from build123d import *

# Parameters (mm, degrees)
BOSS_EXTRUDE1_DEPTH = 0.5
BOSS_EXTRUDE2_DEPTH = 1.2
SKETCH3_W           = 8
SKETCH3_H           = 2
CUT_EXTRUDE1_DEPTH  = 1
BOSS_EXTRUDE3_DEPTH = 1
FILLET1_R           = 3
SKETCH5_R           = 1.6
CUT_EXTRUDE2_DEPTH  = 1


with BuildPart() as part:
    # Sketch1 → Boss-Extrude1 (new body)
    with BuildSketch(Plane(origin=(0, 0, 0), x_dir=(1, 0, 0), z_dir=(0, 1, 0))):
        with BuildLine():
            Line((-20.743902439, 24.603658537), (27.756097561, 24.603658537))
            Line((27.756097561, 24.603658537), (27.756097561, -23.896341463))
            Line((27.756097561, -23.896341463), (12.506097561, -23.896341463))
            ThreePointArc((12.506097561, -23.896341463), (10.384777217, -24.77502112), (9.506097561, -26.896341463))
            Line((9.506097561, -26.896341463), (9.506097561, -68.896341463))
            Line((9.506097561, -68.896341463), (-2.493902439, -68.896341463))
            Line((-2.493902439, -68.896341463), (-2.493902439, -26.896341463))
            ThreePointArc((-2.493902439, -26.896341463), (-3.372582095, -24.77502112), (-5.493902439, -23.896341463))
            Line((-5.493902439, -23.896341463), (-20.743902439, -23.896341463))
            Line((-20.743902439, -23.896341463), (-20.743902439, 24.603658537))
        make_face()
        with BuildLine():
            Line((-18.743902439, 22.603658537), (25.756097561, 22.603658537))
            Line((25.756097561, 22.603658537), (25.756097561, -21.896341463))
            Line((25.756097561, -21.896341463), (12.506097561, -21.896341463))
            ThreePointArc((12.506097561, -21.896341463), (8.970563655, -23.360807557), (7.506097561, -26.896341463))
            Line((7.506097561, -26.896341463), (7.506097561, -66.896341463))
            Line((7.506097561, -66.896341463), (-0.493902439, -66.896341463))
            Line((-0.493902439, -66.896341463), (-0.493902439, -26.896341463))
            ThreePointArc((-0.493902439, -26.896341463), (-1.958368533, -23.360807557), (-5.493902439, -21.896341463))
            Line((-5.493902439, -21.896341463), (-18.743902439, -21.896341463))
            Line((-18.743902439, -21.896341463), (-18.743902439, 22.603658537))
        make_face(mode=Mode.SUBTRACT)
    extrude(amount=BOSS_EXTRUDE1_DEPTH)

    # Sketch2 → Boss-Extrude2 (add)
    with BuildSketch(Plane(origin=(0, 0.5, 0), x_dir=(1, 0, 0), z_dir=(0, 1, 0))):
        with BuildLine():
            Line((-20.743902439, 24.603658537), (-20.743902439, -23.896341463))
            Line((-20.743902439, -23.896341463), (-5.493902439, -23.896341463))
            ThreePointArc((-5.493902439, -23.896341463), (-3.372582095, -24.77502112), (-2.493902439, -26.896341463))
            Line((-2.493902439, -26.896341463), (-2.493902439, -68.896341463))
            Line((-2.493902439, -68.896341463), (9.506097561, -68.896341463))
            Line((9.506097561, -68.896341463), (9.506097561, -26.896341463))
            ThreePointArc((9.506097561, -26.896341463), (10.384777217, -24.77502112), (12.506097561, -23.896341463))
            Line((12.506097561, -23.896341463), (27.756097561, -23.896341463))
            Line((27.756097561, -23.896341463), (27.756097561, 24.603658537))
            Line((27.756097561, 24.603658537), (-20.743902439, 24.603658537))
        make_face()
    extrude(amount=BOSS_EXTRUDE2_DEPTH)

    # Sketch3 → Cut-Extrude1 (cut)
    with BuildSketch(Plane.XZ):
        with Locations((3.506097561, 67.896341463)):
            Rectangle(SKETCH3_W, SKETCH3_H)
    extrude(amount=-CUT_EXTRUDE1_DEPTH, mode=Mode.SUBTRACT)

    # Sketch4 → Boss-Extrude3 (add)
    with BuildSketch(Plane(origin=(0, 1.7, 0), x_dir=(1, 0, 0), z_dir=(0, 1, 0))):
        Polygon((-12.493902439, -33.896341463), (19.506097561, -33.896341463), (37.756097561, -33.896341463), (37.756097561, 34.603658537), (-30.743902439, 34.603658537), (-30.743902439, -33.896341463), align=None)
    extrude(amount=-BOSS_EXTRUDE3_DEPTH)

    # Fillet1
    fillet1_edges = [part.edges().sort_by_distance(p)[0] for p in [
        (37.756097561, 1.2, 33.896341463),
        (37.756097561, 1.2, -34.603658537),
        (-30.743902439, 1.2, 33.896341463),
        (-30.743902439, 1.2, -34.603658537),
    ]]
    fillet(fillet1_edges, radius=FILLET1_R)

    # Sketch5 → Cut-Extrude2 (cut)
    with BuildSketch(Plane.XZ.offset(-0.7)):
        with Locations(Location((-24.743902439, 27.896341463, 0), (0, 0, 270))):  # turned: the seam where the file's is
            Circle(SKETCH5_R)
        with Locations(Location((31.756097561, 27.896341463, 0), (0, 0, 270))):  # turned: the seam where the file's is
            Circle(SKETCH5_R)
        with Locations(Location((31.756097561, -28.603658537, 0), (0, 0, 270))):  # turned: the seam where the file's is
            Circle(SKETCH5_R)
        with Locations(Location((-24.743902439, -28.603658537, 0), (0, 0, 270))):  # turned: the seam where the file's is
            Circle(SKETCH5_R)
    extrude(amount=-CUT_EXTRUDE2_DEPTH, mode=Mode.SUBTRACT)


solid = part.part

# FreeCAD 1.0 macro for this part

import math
import FreeCAD as App
import Part
import Sketcher

V = App.Vector
Q = App.Units.Quantity


def edges_at(feature, points):
    """Names of the edges that pass closest to the given points."""
    edges = feature.Shape.Edges
    near = lambda p: min(range(len(edges)), key=lambda i: edges[i].distToShape(Part.Vertex(*p))[0])
    return sorted({f"Edge{near(p) + 1}" for p in points})

doc = App.newDocument("Part")
body = doc.addObject("PartDesign::Body", "Body")

# Sketch on XZ plane
sketch1 = body.newObject("Sketcher::SketchObject", "Sketch")
sketch1.AttachmentSupport = (doc.getObject("XZ_Plane"), [""])
sketch1.MapMode = "FlatFace"
sketch1.addGeometry([
    Part.LineSegment(V(27.756098, -24.603659, 0), V(-20.743902, -24.603659, 0)),  # 0
    Part.LineSegment(V(-20.743902, -24.603659, 0), V(-20.743902, 23.896341, 0)),  # 1
    Part.LineSegment(V(-20.743902, 23.896341, 0), V(-5.493902, 23.896341, 0)),  # 2
    Part.ArcOfCircle(Part.Circle(V(-5.493902, 26.896341, 0), V(0, 0, 1), 3), math.radians(-90), math.radians(0)),  # 3
    Part.LineSegment(V(-2.493902, 26.896341, 0), V(-2.493902, 68.896341, 0)),  # 4
    Part.LineSegment(V(-2.493902, 68.896341, 0), V(9.506098, 68.896341, 0)),  # 5
    Part.LineSegment(V(9.506098, 68.896341, 0), V(9.506098, 26.896341, 0)),  # 6
    Part.ArcOfCircle(Part.Circle(V(12.506098, 26.896341, 0), V(0, 0, 1), 3), math.radians(180), math.radians(270)),  # 7
    Part.LineSegment(V(12.506098, 23.896341, 0), V(27.756098, 23.896341, 0)),  # 8
    Part.LineSegment(V(27.756098, 23.896341, 0), V(27.756098, -24.603659, 0)),  # 9
    Part.LineSegment(V(-18.743902, -22.603659, 0), V(25.756098, -22.603659, 0)),  # 10
    Part.LineSegment(V(25.756098, -22.603659, 0), V(25.756098, 21.896341, 0)),  # 11
    Part.LineSegment(V(25.756098, 21.896341, 0), V(12.506098, 21.896341, 0)),  # 12
    Part.ArcOfCircle(Part.Circle(V(12.506098, 26.896341, 0), V(0, 0, 1), 5), math.radians(180), math.radians(270)),  # 13
    Part.LineSegment(V(7.506098, 26.896341, 0), V(7.506098, 66.896341, 0)),  # 14
    Part.LineSegment(V(7.506098, 66.896341, 0), V(-0.493902, 66.896341, 0)),  # 15
    Part.LineSegment(V(-0.493902, 66.896341, 0), V(-0.493902, 26.896341, 0)),  # 16
    Part.ArcOfCircle(Part.Circle(V(-5.493902, 26.896341, 0), V(0, 0, 1), 5), math.radians(-90), math.radians(0)),  # 17
    Part.LineSegment(V(-5.493902, 21.896341, 0), V(-18.743902, 21.896341, 0)),  # 18
    Part.LineSegment(V(-18.743902, 21.896341, 0), V(-18.743902, -22.603659, 0)),  # 19
], False)
sketch1.addConstraint([
    Sketcher.Constraint("Coincident", 0, 2, 1, 1),
    Sketcher.Constraint("Coincident", 1, 2, 2, 1),
    Sketcher.Constraint("Tangent", 2, 2, 3, 1),
    Sketcher.Constraint("Tangent", 3, 2, 4, 1),
    Sketcher.Constraint("Coincident", 4, 2, 5, 1),
    Sketcher.Constraint("Coincident", 5, 2, 6, 1),
    Sketcher.Constraint("Tangent", 6, 2, 7, 1),
    Sketcher.Constraint("Tangent", 7, 2, 8, 1),
    Sketcher.Constraint("Coincident", 8, 2, 9, 1),
    Sketcher.Constraint("Coincident", 9, 2, 0, 1),
    Sketcher.Constraint("Coincident", 10, 2, 11, 1),
    Sketcher.Constraint("Coincident", 11, 2, 12, 1),
    Sketcher.Constraint("Tangent", 12, 2, 13, 2),
    Sketcher.Constraint("Tangent", 13, 1, 14, 1),
    Sketcher.Constraint("Coincident", 14, 2, 15, 1),
    Sketcher.Constraint("Coincident", 15, 2, 16, 1),
    Sketcher.Constraint("Tangent", 16, 2, 17, 2),
    Sketcher.Constraint("Tangent", 17, 1, 18, 1),
    Sketcher.Constraint("Coincident", 18, 2, 19, 1),
    Sketcher.Constraint("Coincident", 19, 2, 10, 1),
    Sketcher.Constraint("Horizontal", 0),
    Sketcher.Constraint("Vertical", 1),
    Sketcher.Constraint("Horizontal", 2),
    Sketcher.Constraint("Vertical", 4),
    Sketcher.Constraint("Horizontal", 5),
    Sketcher.Constraint("Vertical", 6),
    Sketcher.Constraint("Horizontal", 8),
    Sketcher.Constraint("Vertical", 9),
    Sketcher.Constraint("Horizontal", 10),
    Sketcher.Constraint("Vertical", 11),
    Sketcher.Constraint("Horizontal", 12),
    Sketcher.Constraint("Vertical", 14),
    Sketcher.Constraint("Horizontal", 15),
    Sketcher.Constraint("Vertical", 16),
    Sketcher.Constraint("Horizontal", 18),
    Sketcher.Constraint("Vertical", 19),
    Sketcher.Constraint("Coincident", 13, 3, 7, 3),
    Sketcher.Constraint("Coincident", 17, 3, 3, 3),
    Sketcher.Constraint("Equal", 3, 7),
    Sketcher.Constraint("Equal", 13, 17),
    Sketcher.Constraint("Horizontal", 3, 3, 7, 3),
    Sketcher.Constraint("Equal", 2, 8),
    Sketcher.Constraint("Equal", 12, 18),
    Sketcher.Constraint("Equal", 0, 1),
    Sketcher.Constraint("Equal", 10, 11),
    Sketcher.Constraint("Radius", 3, Q("3 mm")),
    Sketcher.Constraint("Radius", 13, Q("5 mm")),
    Sketcher.Constraint("DistanceX", 5, 1, 5, 2, Q("12 mm")),
    Sketcher.Constraint("DistanceY", 4, 1, 4, 2, Q("42 mm")),
    Sketcher.Constraint("DistanceY", 14, 1, 14, 2, Q("40 mm")),
    Sketcher.Constraint("DistanceX", 0, 2, 0, 1, Q("48.5 mm")),
    Sketcher.Constraint("DistanceX", 10, 1, 10, 2, Q("44.5 mm")),
    Sketcher.Constraint("DistanceY", -1, 1, 3, 3, Q("26.896341 mm")),
    Sketcher.Constraint("DistanceX", 3, 3, -1, 1, Q("5.493902 mm")),
])
pad1 = body.newObject("PartDesign::Pad", "Pad")
pad1.Profile = sketch1
pad1.Length = 0.5
pad1.Reversed = True

# Sketch on XZ plane
sketch2 = body.newObject("Sketcher::SketchObject", "Sketch001")
sketch2.AttachmentSupport = (doc.getObject("XZ_Plane"), [""])
sketch2.MapMode = "FlatFace"
sketch2.AttachmentOffset = App.Placement(V(0, 0, -0.5), App.Rotation())
sketch2.addGeometry([
    Part.LineSegment(V(-20.743902, -24.603659, 0), V(-20.743902, 23.896341, 0)),  # 0
    Part.LineSegment(V(-20.743902, 23.896341, 0), V(-5.493902, 23.896341, 0)),  # 1
    Part.ArcOfCircle(Part.Circle(V(-5.493902, 26.896341, 0), V(0, 0, 1), 3), math.radians(-90), math.radians(0)),  # 2
    Part.LineSegment(V(-2.493902, 26.896341, 0), V(-2.493902, 68.896341, 0)),  # 3
    Part.LineSegment(V(-2.493902, 68.896341, 0), V(9.506098, 68.896341, 0)),  # 4
    Part.LineSegment(V(9.506098, 68.896341, 0), V(9.506098, 26.896341, 0)),  # 5
    Part.ArcOfCircle(Part.Circle(V(12.506098, 26.896341, 0), V(0, 0, 1), 3), math.radians(180), math.radians(270)),  # 6
    Part.LineSegment(V(12.506098, 23.896341, 0), V(27.756098, 23.896341, 0)),  # 7
    Part.LineSegment(V(27.756098, 23.896341, 0), V(27.756098, -24.603659, 0)),  # 8
    Part.LineSegment(V(27.756098, -24.603659, 0), V(-20.743902, -24.603659, 0)),  # 9
], False)
sketch2.addConstraint([
    Sketcher.Constraint("Coincident", 0, 2, 1, 1),
    Sketcher.Constraint("Tangent", 1, 2, 2, 1),
    Sketcher.Constraint("Tangent", 2, 2, 3, 1),
    Sketcher.Constraint("Coincident", 3, 2, 4, 1),
    Sketcher.Constraint("Coincident", 4, 2, 5, 1),
    Sketcher.Constraint("Tangent", 5, 2, 6, 1),
    Sketcher.Constraint("Tangent", 6, 2, 7, 1),
    Sketcher.Constraint("Coincident", 7, 2, 8, 1),
    Sketcher.Constraint("Coincident", 8, 2, 9, 1),
    Sketcher.Constraint("Coincident", 9, 2, 0, 1),
    Sketcher.Constraint("Vertical", 0),
    Sketcher.Constraint("Horizontal", 1),
    Sketcher.Constraint("Vertical", 3),
    Sketcher.Constraint("Horizontal", 4),
    Sketcher.Constraint("Vertical", 5),
    Sketcher.Constraint("Horizontal", 7),
    Sketcher.Constraint("Vertical", 8),
    Sketcher.Constraint("Horizontal", 9),
    Sketcher.Constraint("Equal", 2, 6),
    Sketcher.Constraint("Horizontal", 2, 3, 6, 3),
    Sketcher.Constraint("Equal", 1, 7),
    Sketcher.Constraint("Equal", 9, 0),
    Sketcher.Constraint("Radius", 2, Q("3 mm")),
    Sketcher.Constraint("DistanceX", 4, 1, 4, 2, Q("12 mm")),
    Sketcher.Constraint("DistanceY", 3, 1, 3, 2, Q("42 mm")),
    Sketcher.Constraint("DistanceX", 9, 2, 9, 1, Q("48.5 mm")),
    Sketcher.Constraint("DistanceY", -1, 1, 2, 3, Q("26.896341 mm")),
    Sketcher.Constraint("DistanceX", 2, 3, -1, 1, Q("5.493902 mm")),
])
pad2 = body.newObject("PartDesign::Pad", "Pad001")
pad2.Profile = sketch2
pad2.Length = 1.2
pad2.Reversed = True

# Sketch on XZ plane
sketch3 = body.newObject("Sketcher::SketchObject", "Sketch002")
sketch3.AttachmentSupport = (doc.getObject("XZ_Plane"), [""])
sketch3.MapMode = "FlatFace"
sketch3.addGeometry([
    Part.LineSegment(V(-0.493902, 68.896341, 0), V(-0.493902, 66.896341, 0)),
    Part.LineSegment(V(-0.493902, 66.896341, 0), V(7.506098, 66.896341, 0)),
    Part.LineSegment(V(7.506098, 66.896341, 0), V(7.506098, 68.896341, 0)),
    Part.LineSegment(V(7.506098, 68.896341, 0), V(-0.493902, 68.896341, 0)),
], False)
sketch3.addConstraint([
    Sketcher.Constraint("Coincident", 0, 2, 1, 1),
    Sketcher.Constraint("Coincident", 1, 2, 2, 1),
    Sketcher.Constraint("Coincident", 2, 2, 3, 1),
    Sketcher.Constraint("Coincident", 3, 2, 0, 1),
    Sketcher.Constraint("Vertical", 0),
    Sketcher.Constraint("Horizontal", 1),
    Sketcher.Constraint("Vertical", 2),
    Sketcher.Constraint("Horizontal", 3),
    Sketcher.Constraint("DistanceX", 1, 1, 1, 2, Q("8 mm")),
    Sketcher.Constraint("DistanceY", 0, 2, 0, 1, Q("2 mm")),
    Sketcher.Constraint("DistanceY", -1, 1, 0, 2, Q("66.896341 mm")),
    Sketcher.Constraint("DistanceX", 0, 2, -1, 1, Q("0.493902 mm")),
])
pocket1 = body.newObject("PartDesign::Pocket", "Pocket")
pocket1.Profile = sketch3
pocket1.Length = 1

# Sketch on XZ plane
sketch4 = body.newObject("Sketcher::SketchObject", "Sketch003")
sketch4.AttachmentSupport = (doc.getObject("XZ_Plane"), [""])
sketch4.MapMode = "FlatFace"
sketch4.AttachmentOffset = App.Placement(V(0, 0, -1.7), App.Rotation())
sketch4.addGeometry([
    Part.LineSegment(V(37.756098, 33.896341, 0), V(37.756098, -34.603659, 0)),
    Part.LineSegment(V(37.756098, -34.603659, 0), V(-30.743902, -34.603659, 0)),
    Part.LineSegment(V(-30.743902, -34.603659, 0), V(-30.743902, 33.896341, 0)),
    Part.LineSegment(V(-30.743902, 33.896341, 0), V(37.756098, 33.896341, 0)),
], False)
sketch4.addConstraint([
    Sketcher.Constraint("Coincident", 0, 2, 1, 1),
    Sketcher.Constraint("Coincident", 1, 2, 2, 1),
    Sketcher.Constraint("Coincident", 2, 2, 3, 1),
    Sketcher.Constraint("Coincident", 3, 2, 0, 1),
    Sketcher.Constraint("Vertical", 0),
    Sketcher.Constraint("Horizontal", 1),
    Sketcher.Constraint("Vertical", 2),
    Sketcher.Constraint("Horizontal", 3),
    Sketcher.Constraint("Equal", 3, 0),
    Sketcher.Constraint("DistanceX", 1, 2, 1, 1, Q("68.5 mm")),
    Sketcher.Constraint("DistanceY", 0, 2, -1, 1, Q("34.603659 mm")),
    Sketcher.Constraint("DistanceX", -1, 1, 0, 2, Q("37.756098 mm")),
])
pad3 = body.newObject("PartDesign::Pad", "Pad002")
pad3.Profile = sketch4
pad3.Length = 1
doc.recompute()

fillet = body.newObject("PartDesign::Fillet", "Fillet")
fillet.Base = (pad3, edges_at(pad3, [
    (37.756, 1.2, 33.896),
    (37.756, 1.2, -34.604),
    (-30.744, 1.2, 33.896),
    (-30.744, 1.2, -34.604),
]))
fillet.Radius = 3

# Sketch on XZ plane
sketch5 = body.newObject("Sketcher::SketchObject", "Sketch004")
sketch5.AttachmentSupport = (doc.getObject("XZ_Plane"), [""])
sketch5.MapMode = "FlatFace"
sketch5.AttachmentOffset = App.Placement(V(0, 0, -0.7), App.Rotation())
sketch5.addGeometry([
    Part.Circle(V(-24.743902, 27.896341, 0), V(0, 0, 1), 1.6),
    Part.Circle(V(31.756098, 27.896341, 0), V(0, 0, 1), 1.6),
    Part.Circle(V(31.756098, -28.603659, 0), V(0, 0, 1), 1.6),
    Part.Circle(V(-24.743902, -28.603659, 0), V(0, 0, 1), 1.6),
], False)
sketch5.addConstraint([
    Sketcher.Constraint("Equal", 0, 1),
    Sketcher.Constraint("Equal", 1, 2),
    Sketcher.Constraint("Equal", 2, 3),
    Sketcher.Constraint("Horizontal", 0, 3, 1, 3),
    Sketcher.Constraint("Horizontal", 2, 3, 3, 3),
    Sketcher.Constraint("Vertical", 1, 3, 2, 3),
    Sketcher.Constraint("Vertical", 0, 3, 3, 3),
    Sketcher.Constraint("Diameter", 0, Q("3.2 mm")),
    Sketcher.Constraint("DistanceX", 0, 3, 1, 3, Q("56.5 mm")),
    Sketcher.Constraint("DistanceY", 2, 3, 1, 3, Q("56.5 mm")),
    Sketcher.Constraint("DistanceY", -1, 1, 0, 3, Q("27.896341 mm")),
    Sketcher.Constraint("DistanceX", 0, 3, -1, 1, Q("24.743902 mm")),
])
pocket2 = body.newObject("PartDesign::Pocket", "Pocket001")
pocket2.Profile = sketch5
pocket2.Length = 1

doc.recompute()
